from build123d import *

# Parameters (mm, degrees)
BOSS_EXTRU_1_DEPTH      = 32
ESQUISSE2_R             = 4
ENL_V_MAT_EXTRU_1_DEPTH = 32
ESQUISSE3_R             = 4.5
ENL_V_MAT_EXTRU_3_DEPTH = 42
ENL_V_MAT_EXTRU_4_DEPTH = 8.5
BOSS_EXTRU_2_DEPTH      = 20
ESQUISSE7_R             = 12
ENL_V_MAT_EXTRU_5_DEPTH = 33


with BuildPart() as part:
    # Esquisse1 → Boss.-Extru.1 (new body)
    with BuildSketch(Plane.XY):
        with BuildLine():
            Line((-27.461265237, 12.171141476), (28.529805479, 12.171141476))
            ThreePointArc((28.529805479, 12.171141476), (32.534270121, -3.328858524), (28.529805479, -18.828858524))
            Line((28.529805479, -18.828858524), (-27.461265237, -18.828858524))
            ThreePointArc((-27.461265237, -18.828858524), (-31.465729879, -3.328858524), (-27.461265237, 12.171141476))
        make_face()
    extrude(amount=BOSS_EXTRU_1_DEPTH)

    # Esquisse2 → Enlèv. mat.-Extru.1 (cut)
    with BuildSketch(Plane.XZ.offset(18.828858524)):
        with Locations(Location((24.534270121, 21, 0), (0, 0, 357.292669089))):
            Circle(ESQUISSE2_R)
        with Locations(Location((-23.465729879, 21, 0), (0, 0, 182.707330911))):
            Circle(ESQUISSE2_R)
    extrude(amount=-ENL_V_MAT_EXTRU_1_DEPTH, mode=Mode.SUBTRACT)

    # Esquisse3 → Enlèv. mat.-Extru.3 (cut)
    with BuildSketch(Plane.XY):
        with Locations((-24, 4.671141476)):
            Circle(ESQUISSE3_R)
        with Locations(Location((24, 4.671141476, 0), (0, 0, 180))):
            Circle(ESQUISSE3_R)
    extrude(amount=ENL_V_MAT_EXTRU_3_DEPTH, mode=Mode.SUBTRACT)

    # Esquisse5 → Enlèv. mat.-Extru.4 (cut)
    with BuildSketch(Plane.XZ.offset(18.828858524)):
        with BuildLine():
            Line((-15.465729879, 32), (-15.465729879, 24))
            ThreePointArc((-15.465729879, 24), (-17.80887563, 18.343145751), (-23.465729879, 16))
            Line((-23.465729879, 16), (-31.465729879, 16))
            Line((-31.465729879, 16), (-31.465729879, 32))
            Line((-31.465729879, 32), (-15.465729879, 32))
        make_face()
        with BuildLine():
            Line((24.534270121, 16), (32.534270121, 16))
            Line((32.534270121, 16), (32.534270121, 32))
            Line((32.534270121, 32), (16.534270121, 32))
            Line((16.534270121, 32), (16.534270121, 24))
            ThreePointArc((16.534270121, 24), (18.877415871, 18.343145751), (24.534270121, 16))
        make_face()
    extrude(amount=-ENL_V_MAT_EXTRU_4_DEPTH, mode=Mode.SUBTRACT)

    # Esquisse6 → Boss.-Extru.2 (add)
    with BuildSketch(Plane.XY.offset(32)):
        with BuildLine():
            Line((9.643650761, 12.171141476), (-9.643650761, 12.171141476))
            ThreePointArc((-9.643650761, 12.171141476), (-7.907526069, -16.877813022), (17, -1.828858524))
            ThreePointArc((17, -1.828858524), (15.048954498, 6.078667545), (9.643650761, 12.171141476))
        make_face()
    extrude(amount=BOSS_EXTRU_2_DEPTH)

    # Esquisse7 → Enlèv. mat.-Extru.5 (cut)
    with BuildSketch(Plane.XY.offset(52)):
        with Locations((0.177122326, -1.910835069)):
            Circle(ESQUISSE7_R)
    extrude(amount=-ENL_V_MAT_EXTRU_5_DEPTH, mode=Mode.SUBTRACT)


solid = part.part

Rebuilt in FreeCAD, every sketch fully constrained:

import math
import FreeCAD as App
import Part
import Sketcher

V = App.Vector
Q = App.Units.Quantity

doc = App.newDocument("Part")
body = doc.addObject("PartDesign::Body", "Body")

sketch1 = doc.addObject("Sketcher::SketchObject", "Sketch")
body.addObject(sketch1)
sketch1.AttachmentSupport = (doc.XY_Plane, [""])
sketch1.MapMode = "FlatFace"
sketch1.addGeometry([
    Part.LineSegment(V(29, 12, 0), V(-27, 12, 0)),
    Part.ArcOfCircle(Part.Circle(V(1, -3, 0), V(0, 0, 1), 32), math.radians(151), math.radians(209)),
    Part.LineSegment(V(-27, -19, 0), V(29, -19, 0)),
    Part.ArcOfCircle(Part.Circle(V(1, -3, 0), V(0, 0, 1), 32), math.radians(-29), math.radians(29)),
], False)
sketch1.addConstraint([
    Sketcher.Constraint("Coincident", 0, 2, 1, 1),
    Sketcher.Constraint("Coincident", 1, 2, 2, 1),
    Sketcher.Constraint("Coincident", 2, 2, 3, 1),
    Sketcher.Constraint("Coincident", 3, 2, 0, 1),
    Sketcher.Constraint("Horizontal", 0),
    Sketcher.Constraint("Horizontal", 2),
    Sketcher.Constraint("Coincident", 3, 3, 1, 3),
    Sketcher.Constraint("Equal", 1, 3),
    Sketcher.Constraint("Vertical", 0, 2, 1, 2),
    Sketcher.Constraint("Radius", 1, Q("32 mm")),
    Sketcher.Constraint("DistanceY", 1, 2, 0, 2, Q("31 mm")),
    Sketcher.Constraint("DistanceX", -1, 1, 1, 3, Q("0.53427 mm")),
    Sketcher.Constraint("DistanceY", 1, 3, -1, 1, Q("3.328859 mm")),
])
pad1 = doc.addObject("PartDesign::Pad", "Pad")
body.addObject(pad1)
pad1.Profile = sketch1
pad1.Length = 32

sketch2 = doc.addObject("Sketcher::SketchObject", "Sketch001")
body.addObject(sketch2)
sketch2.AttachmentSupport = (doc.XZ_Plane, [""])
sketch2.MapMode = "FlatFace"
sketch2.AttachmentOffset = App.Placement(V(0, 0, 18.828859), App.Rotation())
sketch2.addGeometry([
    Part.Circle(V(24.5, 21, 0), V(0, 0, 1), 4),
    Part.Circle(V(-23.5, 21, 0), V(0, 0, 1), 4),
], False)
sketch2.addConstraint([
    Sketcher.Constraint("Equal", 0, 1),
    Sketcher.Constraint("Horizontal", 0, 3, 1, 3),
    Sketcher.Constraint("Diameter", 0, Q("8 mm")),
    Sketcher.Constraint("DistanceY", -1, 1, 0, 3, Q("21 mm")),
    Sketcher.Constraint("DistanceX", 1, 3, 0, 3, Q("48 mm")),
    Sketcher.Constraint("DistanceX", -1, 1, 0, 3, Q("24.53427 mm")),
])
pocket1 = doc.addObject("PartDesign::Pocket", "Pocket")
body.addObject(pocket1)
pocket1.Profile = sketch2
pocket1.Length = 32

sketch3 = doc.addObject("Sketcher::SketchObject", "Sketch002")
body.addObject(sketch3)
sketch3.AttachmentSupport = (doc.XY_Plane, [""])
sketch3.MapMode = "FlatFace"
sketch3.addGeometry([
    Part.Circle(V(-24, 4.7, 0), V(0, 0, 1), 4.5),
    Part.Circle(V(24, 4.7, 0), V(0, 0, 1), 4.5),
], False)
sketch3.addConstraint([
    Sketcher.Constraint("Equal", 0, 1),
    Sketcher.Constraint("Symmetric", 0, 3, 1, 3, -2),
    Sketcher.Constraint("Diameter", 0, Q("9 mm")),
    Sketcher.Constraint("DistanceX", 0, 3, -1, 1, Q("24 mm")),
    Sketcher.Constraint("DistanceY", -1, 1, 0, 3, Q("4.671141 mm")),
])
pocket2 = doc.addObject("PartDesign::Pocket", "Pocket001")
body.addObject(pocket2)
pocket2.Profile = sketch3
pocket2.Length = 42
pocket2.Reversed = True

sketch4 = doc.addObject("Sketcher::SketchObject", "Sketch003")
body.addObject(sketch4)
sketch4.AttachmentSupport = (doc.XZ_Plane, [""])
sketch4.MapMode = "FlatFace"
sketch4.AttachmentOffset = App.Placement(V(0, 0, 18.828859), App.Rotation())
sketch4.addGeometry([
    Part.LineSegment(V(-15, 24, 0), V(-15, 32, 0)),
    Part.LineSegment(V(-15, 32, 0), V(-31, 32, 0)),
    Part.LineSegment(V(-31, 32, 0), V(-31, 16, 0)),
    Part.LineSegment(V(-31, 16, 0), V(-23, 16, 0)),
    Part.ArcOfCircle(Part.Circle(V(-23, 24, 0), V(0, 0, 1), 8), math.radians(-90), math.radians(0)),
    Part.LineSegment(V(25, 16, 0), V(33, 16, 0)),
    Part.LineSegment(V(33, 16, 0), V(33, 32, 0)),
    Part.LineSegment(V(33, 32, 0), V(17, 32, 0)),
    Part.LineSegment(V(17, 32, 0), V(17, 24, 0)),
    Part.ArcOfCircle(Part.Circle(V(25, 24, 0), V(0, 0, 1), 8), math.radians(180), math.radians(270)),
], False)
sketch4.addConstraint([
    Sketcher.Constraint("Coincident", 0, 2, 1, 1),
    Sketcher.Constraint("Coincident", 1, 2, 2, 1),
    Sketcher.Constraint("Coincident", 2, 2, 3, 1),
    Sketcher.Constraint("Tangent", 3, 2, 4, 1),
    Sketcher.Constraint("Tangent", 4, 2, 0, 1),
    Sketcher.Constraint("Coincident", 5, 2, 6, 1),
    Sketcher.Constraint("Coincident", 6, 2, 7, 1),
    Sketcher.Constraint("Coincident", 7, 2, 8, 1),
    Sketcher.Constraint("Tangent", 8, 2, 9, 1),
    Sketcher.Constraint("Tangent", 9, 2, 5, 1),
    Sketcher.Constraint("Vertical", 0),
    Sketcher.Constraint("Horizontal", 1),
    Sketcher.Constraint("Vertical", 2),
    Sketcher.Constraint("Horizontal", 3),
    Sketcher.Constraint("Horizontal", 5),
    Sketcher.Constraint("Vertical", 6),
    Sketcher.Constraint("Horizontal", 7),
    Sketcher.Constraint("Vertical", 8),
    Sketcher.Constraint("Equal", 4, 9),
    Sketcher.Constraint("Horizontal", 4, 3, 9, 3),
    Sketcher.Constraint("Horizontal", 1, 2, 6, 2),
    Sketcher.Constraint("Equal", 3, 5),
    Sketcher.Constraint("Equal", 5, 0),
    Sketcher.Constraint("Radius", 4, Q("8 mm")),
    Sketcher.Constraint("DistanceX", 1, 2, 1, 1, Q("16 mm")),
    Sketcher.Constraint("DistanceY", -1, 1, 4, 3, Q("24 mm")),
    Sketcher.Constraint("DistanceX", 4, 3, 9, 3, Q("48 mm")),
    Sketcher.Constraint("DistanceX", 4, 3, -1, 1, Q("23.46573 mm")),
])
pocket3 = doc.addObject("PartDesign::Pocket", "Pocket002")
body.addObject(pocket3)
pocket3.Profile = sketch4
pocket3.Length = 8.5

sketch5 = doc.addObject("Sketcher::SketchObject", "Sketch004")
body.addObject(sketch5)
sketch5.AttachmentSupport = (doc.XY_Plane, [""])
sketch5.MapMode = "FlatFace"
sketch5.AttachmentOffset = App.Placement(V(0, 0, 32), App.Rotation())
sketch5.addGeometry([
    Part.LineSegment(V(10, 12, 0), V(-10, 12, 0)),
    Part.ArcOfCircle(Part.Circle(V(0, -2, 0), V(0, 0, 1), 17), math.radians(125), math.radians(360)),
    Part.ArcOfCircle(Part.Circle(V(0, -2, 0), V(0, 0, 1), 17), math.radians(0), math.radians(55)),
], False)
sketch5.addConstraint([
    Sketcher.Constraint("Coincident", 0, 2, 1, 1),
    Sketcher.Constraint("Tangent", 1, 2, 2, 1),
    Sketcher.Constraint("Coincident", 2, 2, 0, 1),
    Sketcher.Constraint("Horizontal", 0),
    Sketcher.Constraint("Equal", 1, 2),
    Sketcher.Constraint("PointOnObject", 1, 3, -2),
    Sketcher.Constraint("Horizontal", 2, 3, 1, 2),
    Sketcher.Constraint("Radius", 1, Q("17 mm")),
    Sketcher.Constraint("DistanceY", 1, 3, 0, 2, Q("14 mm")),
    Sketcher.Constraint("DistanceY", 1, 3, -1, 1, Q("1.828859 mm")),
])
pad2 = doc.addObject("PartDesign::Pad", "Pad001")
body.addObject(pad2)
pad2.Profile = sketch5
pad2.Length = 20

sketch6 = doc.addObject("Sketcher::SketchObject", "Sketch005")
body.addObject(sketch6)
sketch6.AttachmentSupport = (doc.XY_Plane, [""])
sketch6.MapMode = "FlatFace"
sketch6.AttachmentOffset = App.Placement(V(0, 0, 52), App.Rotation())
sketch6.addGeometry(Part.Circle(V(0, -2, 0), V(0, 0, 1), 12), False)
sketch6.addConstraint([
    Sketcher.Constraint("Diameter", 0, Q("24 mm")),
    Sketcher.Constraint("DistanceX", -1, 1, 0, 3, Q("0.177122 mm")),
    Sketcher.Constraint("DistanceY", 0, 3, -1, 1, Q("1.910835 mm")),
])
pocket4 = doc.addObject("PartDesign::Pocket", "Pocket003")
body.addObject(pocket4)
pocket4.Profile = sketch6
pocket4.Length = 33

doc.recompute()
